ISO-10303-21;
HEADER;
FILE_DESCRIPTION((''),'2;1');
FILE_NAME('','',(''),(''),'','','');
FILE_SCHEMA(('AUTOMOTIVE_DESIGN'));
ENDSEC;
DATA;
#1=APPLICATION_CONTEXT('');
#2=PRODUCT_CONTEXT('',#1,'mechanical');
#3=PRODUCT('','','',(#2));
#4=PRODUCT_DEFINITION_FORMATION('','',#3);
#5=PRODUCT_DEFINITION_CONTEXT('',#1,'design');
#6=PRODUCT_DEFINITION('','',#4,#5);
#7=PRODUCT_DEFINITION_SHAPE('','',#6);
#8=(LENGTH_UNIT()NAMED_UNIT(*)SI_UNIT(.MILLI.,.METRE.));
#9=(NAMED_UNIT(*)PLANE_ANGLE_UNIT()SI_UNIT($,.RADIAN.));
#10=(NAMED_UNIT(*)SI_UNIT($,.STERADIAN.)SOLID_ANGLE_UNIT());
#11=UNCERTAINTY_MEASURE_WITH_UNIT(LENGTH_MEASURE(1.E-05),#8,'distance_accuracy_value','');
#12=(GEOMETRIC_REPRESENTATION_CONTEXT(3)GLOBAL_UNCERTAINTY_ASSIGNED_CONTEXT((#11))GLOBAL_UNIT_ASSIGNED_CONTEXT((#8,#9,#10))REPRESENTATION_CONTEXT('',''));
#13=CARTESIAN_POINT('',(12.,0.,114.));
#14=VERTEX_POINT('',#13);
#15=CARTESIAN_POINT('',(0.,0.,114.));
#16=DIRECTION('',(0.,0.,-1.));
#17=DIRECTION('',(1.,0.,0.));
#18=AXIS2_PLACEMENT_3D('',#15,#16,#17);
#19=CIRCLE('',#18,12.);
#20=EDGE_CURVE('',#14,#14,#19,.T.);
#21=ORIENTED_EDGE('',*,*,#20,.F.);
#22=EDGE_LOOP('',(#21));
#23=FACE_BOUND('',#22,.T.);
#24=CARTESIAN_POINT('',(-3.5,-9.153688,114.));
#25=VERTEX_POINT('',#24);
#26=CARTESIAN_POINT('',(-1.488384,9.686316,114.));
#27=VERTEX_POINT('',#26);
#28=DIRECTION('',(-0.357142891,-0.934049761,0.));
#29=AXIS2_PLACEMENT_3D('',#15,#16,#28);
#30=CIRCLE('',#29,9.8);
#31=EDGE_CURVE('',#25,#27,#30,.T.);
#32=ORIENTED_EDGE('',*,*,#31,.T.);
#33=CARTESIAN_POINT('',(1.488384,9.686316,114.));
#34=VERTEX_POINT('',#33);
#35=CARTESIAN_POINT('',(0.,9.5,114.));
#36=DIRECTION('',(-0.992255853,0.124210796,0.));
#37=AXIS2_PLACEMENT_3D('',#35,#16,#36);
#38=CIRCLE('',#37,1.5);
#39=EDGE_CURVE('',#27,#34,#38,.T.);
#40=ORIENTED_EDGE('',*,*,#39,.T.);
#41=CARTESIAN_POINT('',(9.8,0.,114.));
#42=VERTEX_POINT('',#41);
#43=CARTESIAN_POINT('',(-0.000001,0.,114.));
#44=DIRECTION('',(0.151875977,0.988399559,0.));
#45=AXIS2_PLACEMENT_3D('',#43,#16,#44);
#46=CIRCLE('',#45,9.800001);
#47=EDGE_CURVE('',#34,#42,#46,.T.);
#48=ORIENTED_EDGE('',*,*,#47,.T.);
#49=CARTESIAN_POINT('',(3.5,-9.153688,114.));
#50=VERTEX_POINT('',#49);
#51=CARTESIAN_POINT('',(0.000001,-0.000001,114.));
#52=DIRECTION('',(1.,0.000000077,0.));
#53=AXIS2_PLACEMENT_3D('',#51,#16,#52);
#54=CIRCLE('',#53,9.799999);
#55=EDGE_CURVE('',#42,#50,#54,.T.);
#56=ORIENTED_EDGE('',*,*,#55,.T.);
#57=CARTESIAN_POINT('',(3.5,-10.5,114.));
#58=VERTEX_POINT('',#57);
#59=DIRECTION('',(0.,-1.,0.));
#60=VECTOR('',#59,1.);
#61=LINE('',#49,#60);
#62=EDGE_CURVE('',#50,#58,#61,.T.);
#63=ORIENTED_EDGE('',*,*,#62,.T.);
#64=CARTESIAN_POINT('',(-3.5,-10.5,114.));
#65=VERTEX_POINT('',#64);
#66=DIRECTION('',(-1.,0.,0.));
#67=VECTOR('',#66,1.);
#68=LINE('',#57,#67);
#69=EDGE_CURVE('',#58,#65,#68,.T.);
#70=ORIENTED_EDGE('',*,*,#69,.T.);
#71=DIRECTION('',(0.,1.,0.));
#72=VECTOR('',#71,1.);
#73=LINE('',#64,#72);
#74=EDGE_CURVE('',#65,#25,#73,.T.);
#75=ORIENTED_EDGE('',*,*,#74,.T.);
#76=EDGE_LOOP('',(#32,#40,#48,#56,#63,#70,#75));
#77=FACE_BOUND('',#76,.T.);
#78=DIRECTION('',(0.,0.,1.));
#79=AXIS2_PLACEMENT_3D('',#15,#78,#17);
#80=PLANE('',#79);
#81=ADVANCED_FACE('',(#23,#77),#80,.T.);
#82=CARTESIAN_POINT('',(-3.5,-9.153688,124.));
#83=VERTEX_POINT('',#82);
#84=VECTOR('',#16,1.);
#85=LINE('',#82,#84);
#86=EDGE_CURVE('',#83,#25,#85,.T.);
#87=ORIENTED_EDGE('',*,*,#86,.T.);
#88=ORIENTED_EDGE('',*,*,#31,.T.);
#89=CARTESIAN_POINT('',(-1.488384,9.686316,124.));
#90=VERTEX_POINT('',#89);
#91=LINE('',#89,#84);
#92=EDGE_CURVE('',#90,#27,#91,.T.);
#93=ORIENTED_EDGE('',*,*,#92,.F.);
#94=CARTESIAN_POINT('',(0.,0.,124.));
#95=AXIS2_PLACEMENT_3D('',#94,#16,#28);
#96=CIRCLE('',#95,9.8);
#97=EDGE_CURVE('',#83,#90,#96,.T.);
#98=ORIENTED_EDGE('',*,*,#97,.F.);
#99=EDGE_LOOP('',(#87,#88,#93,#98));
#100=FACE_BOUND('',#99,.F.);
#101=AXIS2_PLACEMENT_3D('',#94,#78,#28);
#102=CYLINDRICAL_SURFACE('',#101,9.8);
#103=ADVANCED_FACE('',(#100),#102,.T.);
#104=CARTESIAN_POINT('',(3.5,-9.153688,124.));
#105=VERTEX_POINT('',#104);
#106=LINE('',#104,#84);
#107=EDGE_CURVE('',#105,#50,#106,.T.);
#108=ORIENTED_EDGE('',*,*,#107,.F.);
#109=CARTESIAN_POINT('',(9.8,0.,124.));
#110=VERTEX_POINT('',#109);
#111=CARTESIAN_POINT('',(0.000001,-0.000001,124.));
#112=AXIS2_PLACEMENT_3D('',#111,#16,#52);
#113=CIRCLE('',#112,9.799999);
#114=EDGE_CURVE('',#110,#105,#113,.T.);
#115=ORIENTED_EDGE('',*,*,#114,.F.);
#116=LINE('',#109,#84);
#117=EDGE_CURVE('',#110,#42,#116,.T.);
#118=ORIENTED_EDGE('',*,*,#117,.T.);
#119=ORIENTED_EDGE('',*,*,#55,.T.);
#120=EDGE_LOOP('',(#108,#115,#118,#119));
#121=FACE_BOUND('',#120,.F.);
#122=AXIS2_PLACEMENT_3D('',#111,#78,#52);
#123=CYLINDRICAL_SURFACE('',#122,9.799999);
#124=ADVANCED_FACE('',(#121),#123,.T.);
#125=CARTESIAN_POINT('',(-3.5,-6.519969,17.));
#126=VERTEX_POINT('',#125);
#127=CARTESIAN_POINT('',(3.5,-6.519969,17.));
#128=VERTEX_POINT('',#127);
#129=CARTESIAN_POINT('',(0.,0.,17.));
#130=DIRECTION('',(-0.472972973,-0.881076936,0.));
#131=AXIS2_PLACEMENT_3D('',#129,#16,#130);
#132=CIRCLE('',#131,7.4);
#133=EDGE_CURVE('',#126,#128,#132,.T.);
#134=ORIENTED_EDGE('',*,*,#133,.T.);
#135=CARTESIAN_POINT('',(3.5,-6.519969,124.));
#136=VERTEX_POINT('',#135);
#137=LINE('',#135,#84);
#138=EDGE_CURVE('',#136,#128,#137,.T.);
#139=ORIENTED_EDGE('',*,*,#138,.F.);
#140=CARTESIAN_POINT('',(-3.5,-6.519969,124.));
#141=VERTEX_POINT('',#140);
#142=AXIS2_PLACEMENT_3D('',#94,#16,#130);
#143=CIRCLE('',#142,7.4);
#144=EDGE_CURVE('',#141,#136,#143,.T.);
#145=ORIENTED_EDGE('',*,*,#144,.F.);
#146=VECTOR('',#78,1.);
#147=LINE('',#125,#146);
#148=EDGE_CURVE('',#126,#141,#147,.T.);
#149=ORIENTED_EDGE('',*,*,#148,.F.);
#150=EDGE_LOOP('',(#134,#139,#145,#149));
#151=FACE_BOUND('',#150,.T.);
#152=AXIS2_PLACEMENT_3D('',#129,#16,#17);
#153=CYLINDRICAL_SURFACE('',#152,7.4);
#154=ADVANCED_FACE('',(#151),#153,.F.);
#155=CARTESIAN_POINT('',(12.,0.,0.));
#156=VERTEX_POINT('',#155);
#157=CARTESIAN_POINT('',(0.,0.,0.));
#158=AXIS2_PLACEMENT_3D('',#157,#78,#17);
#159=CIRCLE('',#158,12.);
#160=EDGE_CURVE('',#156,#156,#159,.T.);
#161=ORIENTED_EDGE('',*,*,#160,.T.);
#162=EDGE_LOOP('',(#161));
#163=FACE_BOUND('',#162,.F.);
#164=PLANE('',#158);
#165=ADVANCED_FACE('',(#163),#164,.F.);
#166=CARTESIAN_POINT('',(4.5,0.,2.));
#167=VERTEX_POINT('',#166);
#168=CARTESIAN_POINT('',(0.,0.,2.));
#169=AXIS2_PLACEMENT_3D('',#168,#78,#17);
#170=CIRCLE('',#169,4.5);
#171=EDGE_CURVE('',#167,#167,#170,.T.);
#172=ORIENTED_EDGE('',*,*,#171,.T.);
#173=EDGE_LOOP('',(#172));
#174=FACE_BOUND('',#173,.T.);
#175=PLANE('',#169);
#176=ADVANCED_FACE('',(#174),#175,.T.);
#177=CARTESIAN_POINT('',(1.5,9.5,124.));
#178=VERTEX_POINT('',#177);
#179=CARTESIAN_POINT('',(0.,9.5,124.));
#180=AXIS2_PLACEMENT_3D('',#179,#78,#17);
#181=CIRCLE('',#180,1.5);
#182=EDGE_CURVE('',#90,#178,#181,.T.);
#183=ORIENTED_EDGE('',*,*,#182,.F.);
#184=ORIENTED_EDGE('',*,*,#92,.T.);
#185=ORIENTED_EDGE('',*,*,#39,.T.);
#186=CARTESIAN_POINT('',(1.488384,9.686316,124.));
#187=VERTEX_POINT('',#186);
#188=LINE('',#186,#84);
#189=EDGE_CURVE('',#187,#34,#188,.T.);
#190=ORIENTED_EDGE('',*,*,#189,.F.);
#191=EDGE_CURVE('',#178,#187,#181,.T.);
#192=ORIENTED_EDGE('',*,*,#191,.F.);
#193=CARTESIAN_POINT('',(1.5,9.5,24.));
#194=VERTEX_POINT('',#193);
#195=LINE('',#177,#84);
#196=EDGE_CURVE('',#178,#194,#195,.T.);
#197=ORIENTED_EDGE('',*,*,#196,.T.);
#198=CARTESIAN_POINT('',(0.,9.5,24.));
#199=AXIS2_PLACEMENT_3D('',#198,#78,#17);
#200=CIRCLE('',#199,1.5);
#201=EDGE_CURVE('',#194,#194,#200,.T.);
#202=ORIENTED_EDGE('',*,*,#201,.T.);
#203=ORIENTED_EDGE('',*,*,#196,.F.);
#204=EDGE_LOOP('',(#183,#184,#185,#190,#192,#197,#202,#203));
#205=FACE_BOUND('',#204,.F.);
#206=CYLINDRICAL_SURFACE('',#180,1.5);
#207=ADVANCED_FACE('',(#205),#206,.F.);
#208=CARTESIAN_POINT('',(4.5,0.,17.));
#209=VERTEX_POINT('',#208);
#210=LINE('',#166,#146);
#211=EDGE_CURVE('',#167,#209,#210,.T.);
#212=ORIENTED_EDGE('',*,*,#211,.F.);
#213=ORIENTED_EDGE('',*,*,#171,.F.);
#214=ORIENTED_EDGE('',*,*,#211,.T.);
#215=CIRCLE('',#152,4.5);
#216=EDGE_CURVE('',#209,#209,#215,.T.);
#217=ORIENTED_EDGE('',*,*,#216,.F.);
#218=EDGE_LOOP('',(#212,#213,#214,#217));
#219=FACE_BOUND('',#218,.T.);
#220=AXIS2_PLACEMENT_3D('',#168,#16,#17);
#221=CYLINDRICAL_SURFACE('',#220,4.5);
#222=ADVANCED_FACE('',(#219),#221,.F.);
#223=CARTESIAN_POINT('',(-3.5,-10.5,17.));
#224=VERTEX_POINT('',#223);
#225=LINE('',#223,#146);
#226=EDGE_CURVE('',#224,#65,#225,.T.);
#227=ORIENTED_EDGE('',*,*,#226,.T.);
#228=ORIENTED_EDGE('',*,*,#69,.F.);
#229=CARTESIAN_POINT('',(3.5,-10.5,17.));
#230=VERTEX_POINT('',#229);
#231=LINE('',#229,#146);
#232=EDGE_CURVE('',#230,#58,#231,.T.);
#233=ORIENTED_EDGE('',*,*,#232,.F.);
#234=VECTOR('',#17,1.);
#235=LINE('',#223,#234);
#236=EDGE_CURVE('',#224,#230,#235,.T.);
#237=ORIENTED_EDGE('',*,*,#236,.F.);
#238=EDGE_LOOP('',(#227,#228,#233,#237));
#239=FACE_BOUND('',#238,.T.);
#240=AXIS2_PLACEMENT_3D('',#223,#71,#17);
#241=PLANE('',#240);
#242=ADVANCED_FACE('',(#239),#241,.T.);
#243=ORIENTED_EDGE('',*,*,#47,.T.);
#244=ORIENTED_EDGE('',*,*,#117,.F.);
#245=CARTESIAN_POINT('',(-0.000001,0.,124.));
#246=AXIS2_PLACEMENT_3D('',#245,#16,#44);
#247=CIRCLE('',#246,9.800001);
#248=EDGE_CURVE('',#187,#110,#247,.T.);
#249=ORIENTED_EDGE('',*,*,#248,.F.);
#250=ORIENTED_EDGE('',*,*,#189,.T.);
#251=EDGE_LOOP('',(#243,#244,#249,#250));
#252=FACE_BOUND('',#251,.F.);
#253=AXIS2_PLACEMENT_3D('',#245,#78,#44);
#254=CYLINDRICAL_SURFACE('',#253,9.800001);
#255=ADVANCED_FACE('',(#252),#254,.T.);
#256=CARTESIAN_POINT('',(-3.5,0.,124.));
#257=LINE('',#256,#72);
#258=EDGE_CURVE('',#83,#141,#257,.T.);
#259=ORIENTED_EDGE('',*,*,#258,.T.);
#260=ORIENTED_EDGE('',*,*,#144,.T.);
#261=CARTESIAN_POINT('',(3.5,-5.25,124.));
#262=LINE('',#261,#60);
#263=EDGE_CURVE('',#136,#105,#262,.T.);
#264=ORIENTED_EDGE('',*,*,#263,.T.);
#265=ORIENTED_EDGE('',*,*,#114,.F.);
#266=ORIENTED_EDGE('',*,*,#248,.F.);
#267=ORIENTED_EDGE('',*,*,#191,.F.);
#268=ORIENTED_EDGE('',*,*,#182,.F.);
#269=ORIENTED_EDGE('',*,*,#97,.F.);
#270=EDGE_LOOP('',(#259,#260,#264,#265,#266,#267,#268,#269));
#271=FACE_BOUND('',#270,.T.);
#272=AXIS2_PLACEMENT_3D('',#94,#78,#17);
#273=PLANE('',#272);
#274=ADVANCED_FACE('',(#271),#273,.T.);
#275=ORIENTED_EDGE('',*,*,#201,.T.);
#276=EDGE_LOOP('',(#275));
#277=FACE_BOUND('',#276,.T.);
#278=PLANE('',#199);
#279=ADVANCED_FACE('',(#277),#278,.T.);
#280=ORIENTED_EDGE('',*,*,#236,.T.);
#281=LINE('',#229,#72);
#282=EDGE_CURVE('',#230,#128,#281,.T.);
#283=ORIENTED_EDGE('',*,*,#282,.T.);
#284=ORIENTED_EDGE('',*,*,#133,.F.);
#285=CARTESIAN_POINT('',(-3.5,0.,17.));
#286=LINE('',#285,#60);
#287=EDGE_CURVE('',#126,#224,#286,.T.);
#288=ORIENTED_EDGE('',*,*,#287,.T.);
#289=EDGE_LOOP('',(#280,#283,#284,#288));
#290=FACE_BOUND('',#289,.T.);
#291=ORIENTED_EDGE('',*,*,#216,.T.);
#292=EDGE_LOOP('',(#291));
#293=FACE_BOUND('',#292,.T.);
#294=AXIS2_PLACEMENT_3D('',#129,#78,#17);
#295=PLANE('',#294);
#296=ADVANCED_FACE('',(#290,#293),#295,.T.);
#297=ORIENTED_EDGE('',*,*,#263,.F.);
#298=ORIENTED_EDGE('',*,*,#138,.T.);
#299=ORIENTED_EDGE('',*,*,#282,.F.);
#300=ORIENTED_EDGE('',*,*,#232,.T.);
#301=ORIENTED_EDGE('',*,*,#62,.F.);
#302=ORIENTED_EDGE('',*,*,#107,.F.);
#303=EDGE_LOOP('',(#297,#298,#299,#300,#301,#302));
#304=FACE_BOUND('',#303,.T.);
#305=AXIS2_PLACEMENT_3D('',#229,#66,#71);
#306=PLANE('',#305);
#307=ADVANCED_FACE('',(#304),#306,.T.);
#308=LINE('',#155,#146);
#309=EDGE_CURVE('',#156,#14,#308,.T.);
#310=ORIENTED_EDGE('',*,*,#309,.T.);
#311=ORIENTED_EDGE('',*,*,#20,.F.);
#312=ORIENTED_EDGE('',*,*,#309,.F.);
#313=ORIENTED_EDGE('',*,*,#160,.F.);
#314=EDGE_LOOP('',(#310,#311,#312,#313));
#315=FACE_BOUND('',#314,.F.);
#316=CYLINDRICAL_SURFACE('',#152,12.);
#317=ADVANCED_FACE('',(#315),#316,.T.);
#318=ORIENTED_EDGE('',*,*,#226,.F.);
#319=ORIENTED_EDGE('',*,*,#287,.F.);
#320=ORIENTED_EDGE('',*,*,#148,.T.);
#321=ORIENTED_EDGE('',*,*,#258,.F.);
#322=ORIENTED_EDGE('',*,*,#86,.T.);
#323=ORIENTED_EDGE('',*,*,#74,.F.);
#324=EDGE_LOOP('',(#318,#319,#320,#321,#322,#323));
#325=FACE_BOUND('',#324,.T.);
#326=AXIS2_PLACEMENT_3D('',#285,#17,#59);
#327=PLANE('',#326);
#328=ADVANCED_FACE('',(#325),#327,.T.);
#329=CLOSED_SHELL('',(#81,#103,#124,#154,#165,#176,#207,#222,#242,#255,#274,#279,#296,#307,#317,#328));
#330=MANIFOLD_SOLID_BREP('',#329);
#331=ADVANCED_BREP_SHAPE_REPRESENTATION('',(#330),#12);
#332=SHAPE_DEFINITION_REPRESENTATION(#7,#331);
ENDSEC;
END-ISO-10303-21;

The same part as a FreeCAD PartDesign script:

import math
import FreeCAD as App
import Part
import Sketcher


def add_polygon(sketch, points):
    """Adds a closed chain of lines whose ends are joined by coincident constraints."""
    first, n = sketch.GeometryCount, len(points)
    for a, b in zip(points, points[1:] + points[:1]):
        sketch.addGeometry(Part.LineSegment(App.Vector(*a, 0), App.Vector(*b, 0)), False)
    for i in range(n):
        sketch.addConstraint(Sketcher.Constraint("Coincident", first + i, 2, first + (i + 1) % n, 1))

doc = App.newDocument("Part")
body = doc.addObject("PartDesign::Body", "Body")

sketch1 = body.newObject("Sketcher::SketchObject", "Sketch")
sketch1.AttachmentSupport = (doc.getObject("XY_Plane"), [""])
sketch1.MapMode = "FlatFace"
sketch1.addGeometry(Part.Circle(App.Vector(0, 0, 0), App.Vector(0, 0, 1), 12), False)
sketch1.addConstraint(Sketcher.Constraint("Coincident", 0, 3, -1, 1))
sketch1.addConstraint(Sketcher.Constraint("Diameter", 0, 24.0))
pad1 = body.newObject("PartDesign::Pad", "Pad")
pad1.Profile = sketch1
pad1.Length = 2

sketch2 = body.newObject("Sketcher::SketchObject", "Sketch001")
sketch2.AttachmentSupport = (doc.getObject("XY_Plane"), [""])
sketch2.MapMode = "FlatFace"
sketch2.AttachmentOffset = App.Placement(App.Vector(0, 0, 2), App.Rotation())
sketch2.addGeometry(Part.Circle(App.Vector(0, 0, 0), App.Vector(0, 0, 1), 12), False)
sketch2.addGeometry(Part.Circle(App.Vector(0, 0, 0), App.Vector(0, 0, 1), 4.5), False)
sketch2.addConstraint(Sketcher.Constraint("Coincident", 0, 3, -1, 1))
sketch2.addConstraint(Sketcher.Constraint("Coincident", 1, 3, -1, 1))
sketch2.addConstraint(Sketcher.Constraint("Diameter", 0, 24.0))
sketch2.addConstraint(Sketcher.Constraint("Diameter", 1, 9.0))
pad2 = body.newObject("PartDesign::Pad", "Pad001")
pad2.Profile = sketch2
pad2.Length = 15

sketch3 = body.newObject("Sketcher::SketchObject", "Sketch002")
sketch3.AttachmentSupport = (doc.getObject("XY_Plane"), [""])
sketch3.MapMode = "FlatFace"
sketch3.AttachmentOffset = App.Placement(App.Vector(0, 0, 17), App.Rotation())
sketch3.addGeometry(Part.Circle(App.Vector(0, 0, 0), App.Vector(0, 0, 1), 12), False)
sketch3.addGeometry(Part.Circle(App.Vector(0, 0, 0), App.Vector(0, 0, 1), 7), False)
sketch3.addConstraint(Sketcher.Constraint("Coincident", 0, 3, -1, 1))
sketch3.addConstraint(Sketcher.Constraint("Coincident", 1, 3, -1, 1))
sketch3.addConstraint(Sketcher.Constraint("Diameter", 0, 24.0))
sketch3.addConstraint(Sketcher.Constraint("Diameter", 1, 14.8))
pad3 = body.newObject("PartDesign::Pad", "Pad002")
pad3.Profile = sketch3
pad3.Length = 107

sketch4 = body.newObject("Sketcher::SketchObject", "Sketch003")
sketch4.AttachmentSupport = (doc.getObject("XY_Plane"), [""])
sketch4.MapMode = "FlatFace"
sketch4.AttachmentOffset = App.Placement(App.Vector(0, 0, 17), App.Rotation())
add_polygon(sketch4, [(4, 0), (-4, 0), (-4, -10), (4, -10)])
sketch4.addConstraint(Sketcher.Constraint("Horizontal", 0))
sketch4.addConstraint(Sketcher.Constraint("Vertical", 1))
sketch4.addConstraint(Sketcher.Constraint("Horizontal", 2))
sketch4.addConstraint(Sketcher.Constraint("Vertical", 3))
sketch4.addConstraint(Sketcher.Constraint("Symmetric", 0, 2, 3, 2, -1, 1))
sketch4.addConstraint(Sketcher.Constraint("DistanceX", 0, 2, 0, 1, 7.0))
sketch4.addConstraint(Sketcher.Constraint("DistanceY", 1, 2, 1, 1, 10.5))
pocket1 = body.newObject("PartDesign::Pocket", "Pocket")
pocket1.Profile = sketch4
pocket1.Type = "ThroughAll"
pocket1.Reversed = True

sketch5 = body.newObject("Sketcher::SketchObject", "Sketch004")
sketch5.AttachmentSupport = (doc.getObject("XY_Plane"), [""])
sketch5.MapMode = "FlatFace"
sketch5.AttachmentOffset = App.Placement(App.Vector(0, 0, 124), App.Rotation())
sketch5.addGeometry(Part.Circle(App.Vector(0, 9.5, 0), App.Vector(0, 0, 1), 1.5), False)
sketch5.addConstraint(Sketcher.Constraint("PointOnObject", 0, 3, -2))
sketch5.addConstraint(Sketcher.Constraint("Diameter", 0, 3.0))
sketch5.addConstraint(Sketcher.Constraint("DistanceY", -1, 1, 0, 3, 9.5))
pocket2 = body.newObject("PartDesign::Pocket", "Pocket001")
pocket2.Profile = sketch5
pocket2.Length = 100

sketch6 = body.newObject("Sketcher::SketchObject", "Sketch005")
sketch6.AttachmentSupport = (doc.getObject("XY_Plane"), [""])
sketch6.MapMode = "FlatFace"
sketch6.AttachmentOffset = App.Placement(App.Vector(0, 0, 124), App.Rotation())
sketch6.addGeometry(Part.Circle(App.Vector(0, 0, 0), App.Vector(0, 0, 1), 12), False)
sketch6.addGeometry(Part.ArcOfCircle(Part.Circle(App.Vector(0, 9.5, 0), App.Vector(0, 0, 1), 1.5), math.radians(7), math.radians(173)), False)
sketch6.addGeometry(Part.ArcOfCircle(Part.Circle(App.Vector(0, 0, 0), App.Vector(0, 0, 1), 9.8), math.radians(0), math.radians(81)), False)
sketch6.addGeometry(Part.ArcOfCircle(Part.Circle(App.Vector(0, 0, 0), App.Vector(0, 0, 1), 9.8), math.radians(-69), math.radians(0)), False)
sketch6.addGeometry(Part.LineSegment(App.Vector(3.5, -9.2, 0), App.Vector(3.5, -10.5, 0)), False)
sketch6.addGeometry(Part.LineSegment(App.Vector(3.5, -10.5, 0), App.Vector(-3.5, -10.5, 0)), False)
sketch6.addGeometry(Part.LineSegment(App.Vector(-3.5, -10.5, 0), App.Vector(-3.5, -9.2, 0)), False)
sketch6.addGeometry(Part.ArcOfCircle(Part.Circle(App.Vector(0, 0, 0), App.Vector(0, 0, 1), 9.8), math.radians(99), math.radians(249)), False)
sketch6.addConstraint(Sketcher.Constraint("Coincident", 1, 1, 2, 2))
sketch6.addConstraint(Sketcher.Constraint("Tangent", 2, 1, 3, 2))
sketch6.addConstraint(Sketcher.Constraint("Coincident", 3, 1, 4, 1))
sketch6.addConstraint(Sketcher.Constraint("Coincident", 4, 2, 5, 1))
sketch6.addConstraint(Sketcher.Constraint("Coincident", 5, 2, 6, 1))
sketch6.addConstraint(Sketcher.Constraint("Coincident", 6, 2, 7, 2))
sketch6.addConstraint(Sketcher.Constraint("Coincident", 7, 1, 1, 2))
sketch6.addConstraint(Sketcher.Constraint("Vertical", 4))
sketch6.addConstraint(Sketcher.Constraint("Horizontal", 5))
sketch6.addConstraint(Sketcher.Constraint("Vertical", 6))
sketch6.addConstraint(Sketcher.Constraint("Coincident", 0, 3, -1, 1))
sketch6.addConstraint(Sketcher.Constraint("Coincident", 2, 3, -1, 1))
sketch6.addConstraint(Sketcher.Constraint("Coincident", 7, 3, -1, 1))
sketch6.addConstraint(Sketcher.Constraint("Equal", 2, 3))
sketch6.addConstraint(Sketcher.Constraint("Equal", 3, 7))
sketch6.addConstraint(Sketcher.Constraint("PointOnObject", 1, 3, -2))
sketch6.addConstraint(Sketcher.Constraint("PointOnObject", 2, 1, -1))
sketch6.addConstraint(Sketcher.Constraint("Horizontal", 3, 1, 6, 2))
sketch6.addConstraint(Sketcher.Constraint("Diameter", 0, 24.0))
sketch6.addConstraint(Sketcher.Constraint("Radius", 1, 1.5))
sketch6.addConstraint(Sketcher.Constraint("Radius", 2, 9.800001))
sketch6.addConstraint(Sketcher.Constraint("DistanceX", 5, 2, 5, 1, 7.0))
sketch6.addConstraint(Sketcher.Constraint("DistanceY", -1, 1, 1, 3, 9.5))
sketch6.addConstraint(Sketcher.Constraint("DistanceY", 4, 2, -1, 1, 10.5))
pocket3 = body.newObject("PartDesign::Pocket", "Pocket002")
pocket3.Profile = sketch6
pocket3.Length = 10

sketch7 = body.newObject("Sketcher::SketchObject", "Sketch006")
sketch7.AttachmentSupport = (doc.getObject("XY_Plane"), [""])
sketch7.MapMode = "FlatFace"
sketch7.AttachmentOffset = App.Placement(App.Vector(0, 0, 124), App.Rotation())
add_polygon(sketch7, [(4, 0), (-4, 0), (-4, -12), (4, -12)])
sketch7.addConstraint(Sketcher.Constraint("Horizontal", 0))
sketch7.addConstraint(Sketcher.Constraint("Vertical", 1))
sketch7.addConstraint(Sketcher.Constraint("Horizontal", 2))
sketch7.addConstraint(Sketcher.Constraint("Vertical", 3))
sketch7.addConstraint(Sketcher.Constraint("Symmetric", 0, 2, 3, 2, -1, 1))
sketch7.addConstraint(Sketcher.Constraint("DistanceX", 0, 2, 0, 1, 7.0))
sketch7.addConstraint(Sketcher.Constraint("DistanceY", 1, 2, 1, 1, 12.0))
pocket4 = body.newObject("PartDesign::Pocket", "Pocket003")
pocket4.Profile = sketch7
pocket4.Length = 10

doc.recompute()
